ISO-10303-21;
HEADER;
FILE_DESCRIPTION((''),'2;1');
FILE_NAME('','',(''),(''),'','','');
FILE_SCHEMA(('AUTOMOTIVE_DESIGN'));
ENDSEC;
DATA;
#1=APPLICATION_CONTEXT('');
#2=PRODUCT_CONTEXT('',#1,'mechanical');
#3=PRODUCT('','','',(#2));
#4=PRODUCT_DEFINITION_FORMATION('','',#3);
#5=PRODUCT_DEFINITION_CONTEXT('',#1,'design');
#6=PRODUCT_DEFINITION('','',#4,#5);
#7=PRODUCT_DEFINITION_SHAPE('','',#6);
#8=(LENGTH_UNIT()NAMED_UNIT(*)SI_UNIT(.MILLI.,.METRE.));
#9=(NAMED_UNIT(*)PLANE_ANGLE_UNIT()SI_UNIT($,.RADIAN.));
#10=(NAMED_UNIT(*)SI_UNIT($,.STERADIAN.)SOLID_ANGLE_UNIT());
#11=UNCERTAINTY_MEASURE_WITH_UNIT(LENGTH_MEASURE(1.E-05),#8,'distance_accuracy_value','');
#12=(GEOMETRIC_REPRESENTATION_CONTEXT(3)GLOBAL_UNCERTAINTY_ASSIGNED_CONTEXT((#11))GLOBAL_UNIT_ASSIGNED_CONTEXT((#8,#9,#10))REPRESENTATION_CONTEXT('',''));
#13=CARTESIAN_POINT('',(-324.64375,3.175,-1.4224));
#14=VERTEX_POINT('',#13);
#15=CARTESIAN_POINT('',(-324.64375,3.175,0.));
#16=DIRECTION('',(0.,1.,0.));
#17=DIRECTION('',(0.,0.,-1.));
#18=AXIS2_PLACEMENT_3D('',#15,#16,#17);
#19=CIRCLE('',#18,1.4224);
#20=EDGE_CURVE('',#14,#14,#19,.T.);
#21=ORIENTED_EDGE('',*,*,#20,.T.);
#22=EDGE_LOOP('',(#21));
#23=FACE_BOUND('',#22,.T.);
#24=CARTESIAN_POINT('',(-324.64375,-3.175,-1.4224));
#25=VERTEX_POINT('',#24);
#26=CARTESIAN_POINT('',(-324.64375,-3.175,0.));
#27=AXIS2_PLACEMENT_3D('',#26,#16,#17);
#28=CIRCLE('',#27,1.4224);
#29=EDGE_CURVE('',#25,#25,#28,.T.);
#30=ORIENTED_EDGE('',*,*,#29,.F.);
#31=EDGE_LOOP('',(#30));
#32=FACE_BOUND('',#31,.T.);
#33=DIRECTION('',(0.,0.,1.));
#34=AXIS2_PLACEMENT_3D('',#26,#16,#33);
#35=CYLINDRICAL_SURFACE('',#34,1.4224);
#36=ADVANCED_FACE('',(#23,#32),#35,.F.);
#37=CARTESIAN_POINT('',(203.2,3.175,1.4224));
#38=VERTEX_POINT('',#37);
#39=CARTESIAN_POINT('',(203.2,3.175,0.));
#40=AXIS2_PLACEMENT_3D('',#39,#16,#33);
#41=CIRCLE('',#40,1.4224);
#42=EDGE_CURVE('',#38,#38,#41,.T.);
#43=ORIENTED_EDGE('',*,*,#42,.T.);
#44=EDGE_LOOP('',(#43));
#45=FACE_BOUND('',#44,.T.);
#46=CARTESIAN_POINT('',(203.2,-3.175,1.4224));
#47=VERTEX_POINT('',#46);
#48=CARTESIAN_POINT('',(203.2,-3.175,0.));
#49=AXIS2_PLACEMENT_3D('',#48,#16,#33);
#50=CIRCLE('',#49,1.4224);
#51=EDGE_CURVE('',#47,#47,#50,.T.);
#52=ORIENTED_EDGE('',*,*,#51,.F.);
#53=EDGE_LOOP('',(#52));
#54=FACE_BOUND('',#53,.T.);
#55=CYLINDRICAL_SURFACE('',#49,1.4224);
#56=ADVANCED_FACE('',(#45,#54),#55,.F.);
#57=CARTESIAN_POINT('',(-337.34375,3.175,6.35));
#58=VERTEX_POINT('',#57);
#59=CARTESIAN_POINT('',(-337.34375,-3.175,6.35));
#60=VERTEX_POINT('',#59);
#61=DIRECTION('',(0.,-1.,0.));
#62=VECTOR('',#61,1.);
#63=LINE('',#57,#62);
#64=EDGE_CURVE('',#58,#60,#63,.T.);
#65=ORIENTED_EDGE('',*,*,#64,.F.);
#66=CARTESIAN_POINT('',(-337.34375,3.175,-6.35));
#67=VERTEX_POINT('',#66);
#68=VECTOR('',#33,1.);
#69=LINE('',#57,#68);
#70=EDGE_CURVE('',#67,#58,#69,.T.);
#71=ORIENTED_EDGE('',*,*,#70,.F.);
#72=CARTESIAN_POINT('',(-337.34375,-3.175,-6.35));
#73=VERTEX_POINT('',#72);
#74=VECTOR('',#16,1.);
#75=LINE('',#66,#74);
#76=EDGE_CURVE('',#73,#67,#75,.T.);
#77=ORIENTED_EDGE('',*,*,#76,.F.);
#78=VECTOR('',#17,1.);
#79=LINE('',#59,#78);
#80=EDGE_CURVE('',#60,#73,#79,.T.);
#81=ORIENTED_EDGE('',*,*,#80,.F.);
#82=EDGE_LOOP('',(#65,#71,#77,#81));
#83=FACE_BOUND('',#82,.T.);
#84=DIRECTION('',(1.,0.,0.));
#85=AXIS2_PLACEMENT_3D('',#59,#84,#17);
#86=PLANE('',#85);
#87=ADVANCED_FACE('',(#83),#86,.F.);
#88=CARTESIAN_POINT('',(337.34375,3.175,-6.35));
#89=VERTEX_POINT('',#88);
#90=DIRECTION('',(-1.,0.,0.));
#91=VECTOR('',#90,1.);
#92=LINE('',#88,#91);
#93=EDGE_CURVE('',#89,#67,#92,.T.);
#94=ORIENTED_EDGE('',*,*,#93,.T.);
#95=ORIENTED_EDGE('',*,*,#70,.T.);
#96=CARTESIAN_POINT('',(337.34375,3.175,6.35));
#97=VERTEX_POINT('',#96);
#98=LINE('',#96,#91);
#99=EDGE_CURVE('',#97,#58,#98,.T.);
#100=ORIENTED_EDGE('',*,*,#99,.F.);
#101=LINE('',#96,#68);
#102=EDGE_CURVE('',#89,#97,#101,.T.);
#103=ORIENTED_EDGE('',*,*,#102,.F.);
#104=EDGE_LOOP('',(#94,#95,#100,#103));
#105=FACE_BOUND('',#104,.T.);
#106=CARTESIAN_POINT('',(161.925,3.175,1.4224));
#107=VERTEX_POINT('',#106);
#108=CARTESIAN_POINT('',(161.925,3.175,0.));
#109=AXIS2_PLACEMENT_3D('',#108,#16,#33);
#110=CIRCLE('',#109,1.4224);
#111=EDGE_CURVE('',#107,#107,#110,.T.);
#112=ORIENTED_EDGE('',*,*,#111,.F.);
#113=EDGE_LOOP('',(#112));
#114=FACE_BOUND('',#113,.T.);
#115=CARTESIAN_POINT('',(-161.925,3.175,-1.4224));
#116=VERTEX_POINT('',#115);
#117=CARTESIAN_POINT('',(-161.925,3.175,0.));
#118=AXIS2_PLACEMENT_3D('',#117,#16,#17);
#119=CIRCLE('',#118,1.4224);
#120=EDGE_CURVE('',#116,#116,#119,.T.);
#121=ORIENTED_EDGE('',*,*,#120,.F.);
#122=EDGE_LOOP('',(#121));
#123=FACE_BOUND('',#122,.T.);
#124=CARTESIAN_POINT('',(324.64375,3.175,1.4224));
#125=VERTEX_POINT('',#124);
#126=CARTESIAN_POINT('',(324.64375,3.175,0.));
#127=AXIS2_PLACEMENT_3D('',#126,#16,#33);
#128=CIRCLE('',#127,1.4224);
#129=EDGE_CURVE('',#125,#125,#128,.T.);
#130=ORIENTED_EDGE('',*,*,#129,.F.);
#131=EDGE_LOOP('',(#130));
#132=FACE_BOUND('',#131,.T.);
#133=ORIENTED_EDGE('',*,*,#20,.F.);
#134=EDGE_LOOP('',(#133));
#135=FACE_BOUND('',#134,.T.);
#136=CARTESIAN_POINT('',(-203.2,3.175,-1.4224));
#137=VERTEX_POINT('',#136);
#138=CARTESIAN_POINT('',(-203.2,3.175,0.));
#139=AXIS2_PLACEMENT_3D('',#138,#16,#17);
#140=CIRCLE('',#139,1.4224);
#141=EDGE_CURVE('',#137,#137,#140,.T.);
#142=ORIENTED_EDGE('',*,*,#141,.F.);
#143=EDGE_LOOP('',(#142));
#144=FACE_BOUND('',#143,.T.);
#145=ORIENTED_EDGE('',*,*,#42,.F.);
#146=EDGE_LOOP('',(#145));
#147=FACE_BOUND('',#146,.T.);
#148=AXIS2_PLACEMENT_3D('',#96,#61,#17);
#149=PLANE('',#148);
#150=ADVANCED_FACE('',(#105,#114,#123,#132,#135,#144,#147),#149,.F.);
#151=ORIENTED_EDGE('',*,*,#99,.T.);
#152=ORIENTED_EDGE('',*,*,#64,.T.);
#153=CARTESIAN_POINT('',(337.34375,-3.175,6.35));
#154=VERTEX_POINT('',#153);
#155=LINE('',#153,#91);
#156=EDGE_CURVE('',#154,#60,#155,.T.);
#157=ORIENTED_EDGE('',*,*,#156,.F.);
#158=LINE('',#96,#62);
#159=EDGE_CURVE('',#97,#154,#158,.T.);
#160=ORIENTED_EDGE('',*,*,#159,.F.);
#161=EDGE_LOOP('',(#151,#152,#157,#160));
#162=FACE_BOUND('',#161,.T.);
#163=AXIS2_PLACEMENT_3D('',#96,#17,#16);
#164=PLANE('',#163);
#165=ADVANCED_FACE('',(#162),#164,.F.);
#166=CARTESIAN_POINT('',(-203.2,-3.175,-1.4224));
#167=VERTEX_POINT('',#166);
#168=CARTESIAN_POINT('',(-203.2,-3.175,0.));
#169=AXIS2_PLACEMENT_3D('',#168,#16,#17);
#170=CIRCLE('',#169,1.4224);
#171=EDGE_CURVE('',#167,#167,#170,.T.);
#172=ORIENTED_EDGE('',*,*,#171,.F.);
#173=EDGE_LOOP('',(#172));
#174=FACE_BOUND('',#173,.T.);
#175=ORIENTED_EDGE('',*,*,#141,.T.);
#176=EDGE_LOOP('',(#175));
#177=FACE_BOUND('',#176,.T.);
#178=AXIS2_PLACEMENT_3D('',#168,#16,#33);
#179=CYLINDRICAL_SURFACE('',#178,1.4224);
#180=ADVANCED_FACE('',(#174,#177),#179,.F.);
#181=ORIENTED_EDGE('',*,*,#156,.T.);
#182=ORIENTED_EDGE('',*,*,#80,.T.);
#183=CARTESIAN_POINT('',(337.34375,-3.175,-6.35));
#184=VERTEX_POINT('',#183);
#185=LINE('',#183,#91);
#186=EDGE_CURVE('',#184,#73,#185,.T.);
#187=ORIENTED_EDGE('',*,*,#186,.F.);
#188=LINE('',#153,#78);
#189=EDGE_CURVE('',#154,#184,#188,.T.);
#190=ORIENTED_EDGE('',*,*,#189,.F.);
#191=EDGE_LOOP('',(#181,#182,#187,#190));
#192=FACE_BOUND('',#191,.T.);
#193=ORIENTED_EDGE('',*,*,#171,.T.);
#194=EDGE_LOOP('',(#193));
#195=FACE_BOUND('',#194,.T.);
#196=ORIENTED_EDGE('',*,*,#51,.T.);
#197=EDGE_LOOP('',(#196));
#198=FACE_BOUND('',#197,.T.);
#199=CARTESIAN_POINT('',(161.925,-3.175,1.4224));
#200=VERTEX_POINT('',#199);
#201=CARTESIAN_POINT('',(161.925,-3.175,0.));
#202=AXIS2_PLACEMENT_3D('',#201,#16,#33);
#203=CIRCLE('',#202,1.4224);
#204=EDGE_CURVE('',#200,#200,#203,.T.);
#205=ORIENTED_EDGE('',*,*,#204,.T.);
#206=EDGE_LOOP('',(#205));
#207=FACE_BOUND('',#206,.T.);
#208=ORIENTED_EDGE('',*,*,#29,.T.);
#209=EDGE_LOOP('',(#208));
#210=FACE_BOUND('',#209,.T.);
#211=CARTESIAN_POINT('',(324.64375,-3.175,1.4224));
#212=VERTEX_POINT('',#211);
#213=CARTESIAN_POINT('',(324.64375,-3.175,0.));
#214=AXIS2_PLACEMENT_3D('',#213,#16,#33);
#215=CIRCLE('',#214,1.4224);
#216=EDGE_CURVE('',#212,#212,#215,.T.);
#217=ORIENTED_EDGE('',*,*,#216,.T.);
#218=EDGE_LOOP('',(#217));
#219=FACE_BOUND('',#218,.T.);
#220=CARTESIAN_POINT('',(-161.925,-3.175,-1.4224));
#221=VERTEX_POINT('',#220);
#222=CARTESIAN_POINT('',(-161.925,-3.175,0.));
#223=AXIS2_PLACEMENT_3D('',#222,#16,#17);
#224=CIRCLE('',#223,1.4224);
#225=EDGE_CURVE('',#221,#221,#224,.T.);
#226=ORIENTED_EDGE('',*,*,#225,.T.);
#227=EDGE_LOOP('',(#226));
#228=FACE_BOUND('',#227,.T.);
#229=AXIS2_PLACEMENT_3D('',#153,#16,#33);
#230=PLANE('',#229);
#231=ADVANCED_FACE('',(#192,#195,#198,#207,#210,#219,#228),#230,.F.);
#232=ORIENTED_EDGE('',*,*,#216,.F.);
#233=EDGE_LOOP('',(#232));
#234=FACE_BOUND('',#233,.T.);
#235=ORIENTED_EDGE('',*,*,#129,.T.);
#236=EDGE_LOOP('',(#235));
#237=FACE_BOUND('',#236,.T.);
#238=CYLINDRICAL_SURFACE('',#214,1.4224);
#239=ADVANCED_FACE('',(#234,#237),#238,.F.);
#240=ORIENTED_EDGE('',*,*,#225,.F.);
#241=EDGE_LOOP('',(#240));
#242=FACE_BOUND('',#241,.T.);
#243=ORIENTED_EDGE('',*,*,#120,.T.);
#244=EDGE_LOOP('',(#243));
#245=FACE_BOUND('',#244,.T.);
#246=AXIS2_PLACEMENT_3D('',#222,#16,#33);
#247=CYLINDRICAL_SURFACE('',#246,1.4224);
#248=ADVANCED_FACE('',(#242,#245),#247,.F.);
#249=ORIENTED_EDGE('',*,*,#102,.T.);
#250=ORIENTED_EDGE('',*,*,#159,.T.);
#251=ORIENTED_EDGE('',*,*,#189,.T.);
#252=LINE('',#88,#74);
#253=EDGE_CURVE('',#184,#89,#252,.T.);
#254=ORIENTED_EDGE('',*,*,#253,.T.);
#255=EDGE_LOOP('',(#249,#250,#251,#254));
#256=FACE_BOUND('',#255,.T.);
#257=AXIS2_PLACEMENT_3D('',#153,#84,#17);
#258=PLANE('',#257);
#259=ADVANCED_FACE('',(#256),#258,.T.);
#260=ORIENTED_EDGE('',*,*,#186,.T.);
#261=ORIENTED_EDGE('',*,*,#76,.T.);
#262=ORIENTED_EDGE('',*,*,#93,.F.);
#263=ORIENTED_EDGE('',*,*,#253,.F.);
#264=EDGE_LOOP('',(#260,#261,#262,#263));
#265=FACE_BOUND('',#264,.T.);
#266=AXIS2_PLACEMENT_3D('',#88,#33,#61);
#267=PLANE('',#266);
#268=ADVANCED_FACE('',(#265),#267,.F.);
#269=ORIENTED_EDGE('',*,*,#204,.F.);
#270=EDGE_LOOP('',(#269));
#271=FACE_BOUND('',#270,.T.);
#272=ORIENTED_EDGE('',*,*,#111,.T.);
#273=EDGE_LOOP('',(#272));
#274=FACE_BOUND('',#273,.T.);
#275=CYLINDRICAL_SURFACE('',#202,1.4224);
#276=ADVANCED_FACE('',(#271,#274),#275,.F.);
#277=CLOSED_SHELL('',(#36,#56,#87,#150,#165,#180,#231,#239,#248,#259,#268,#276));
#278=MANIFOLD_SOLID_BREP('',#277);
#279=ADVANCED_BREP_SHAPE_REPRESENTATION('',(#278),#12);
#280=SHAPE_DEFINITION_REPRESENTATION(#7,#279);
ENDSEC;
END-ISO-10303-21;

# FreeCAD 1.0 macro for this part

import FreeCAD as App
import Part
import Sketcher
from FreeCAD import Vector
Q = App.Units.Quantity

doc = App.newDocument("Part")
body = doc.addObject("PartDesign::Body", "Body")

sketch1 = body.newObject("Sketcher::SketchObject", "Sketch")
sketch1.AttachmentSupport = (doc.getObject("YZ_Plane"), [""])
sketch1.MapMode = "FlatFace"
sketch1.addGeometry(Part.LineSegment(Vector(3.175, 6.35, 0), Vector(-3.175, 6.35, 0)), False)
sketch1.addGeometry(Part.LineSegment(Vector(-3.175, 6.35, 0), Vector(-3.175, -6.35, 0)), False)
sketch1.addGeometry(Part.LineSegment(Vector(-3.175, -6.35, 0), Vector(3.175, -6.35, 0)), False)
sketch1.addGeometry(Part.LineSegment(Vector(3.175, -6.35, 0), Vector(3.175, 6.35, 0)), False)
sketch1.addConstraint(Sketcher.Constraint("Coincident", 0, 2, 1, 1))
sketch1.addConstraint(Sketcher.Constraint("Coincident", 1, 2, 2, 1))
sketch1.addConstraint(Sketcher.Constraint("Coincident", 2, 2, 3, 1))
sketch1.addConstraint(Sketcher.Constraint("Coincident", 3, 2, 0, 1))
sketch1.addConstraint(Sketcher.Constraint("Horizontal", 0))
sketch1.addConstraint(Sketcher.Constraint("Vertical", 1))
sketch1.addConstraint(Sketcher.Constraint("Horizontal", 2))
sketch1.addConstraint(Sketcher.Constraint("Vertical", 3))
sketch1.addConstraint(Sketcher.Constraint("Symmetric", 0, 2, 2, 2, -1, 1))
sketch1.addConstraint(Sketcher.Constraint("DistanceY", 1, 2, 1, 1, Q("0.5 in")))
sketch1.addConstraint(Sketcher.Constraint("DistanceX", 0, 2, 0, 1, Q("0.25 in")))
pad1 = body.newObject("PartDesign::Pad", "Pad")
pad1.Profile = sketch1
pad1.Length = Q("26.5625 in")
pad1.Midplane = True

sketch2 = body.newObject("Sketcher::SketchObject", "Sketch001")
sketch2.AttachmentSupport = (doc.getObject("XZ_Plane"), [""])
sketch2.MapMode = "FlatFace"
sketch2.AttachmentOffset = App.Placement(Vector(0, 0, -0.125 * 25.4), App.Rotation())
sketch2.addGeometry(Part.Circle(Vector(161.925, 0, 0), Vector(0, 0, 1), 1.4224), False)
sketch2.addGeometry(Part.Circle(Vector(203.2, 0, 0), Vector(0, 0, 1), 1.4224), False)
sketch2.addGeometry(Part.Circle(Vector(-203.2, 0, 0), Vector(0, 0, 1), 1.4224), False)
sketch2.addGeometry(Part.Circle(Vector(-161.925, 0, 0), Vector(0, 0, 1), 1.4224), False)
sketch2.addGeometry(Part.Circle(Vector(324.64375, 0, 0), Vector(0, 0, 1), 1.4224), False)
sketch2.addGeometry(Part.Circle(Vector(-324.64375, 0, 0), Vector(0, 0, 1), 1.4224), False)
sketch2.addConstraint(Sketcher.Constraint("Equal", 0, 1))
sketch2.addConstraint(Sketcher.Constraint("Equal", 1, 2))
sketch2.addConstraint(Sketcher.Constraint("Equal", 2, 3))
sketch2.addConstraint(Sketcher.Constraint("Equal", 3, 4))
sketch2.addConstraint(Sketcher.Constraint("Equal", 4, 5))
sketch2.addConstraint(Sketcher.Constraint("Symmetric", 1, 3, 2, 3, -1, 1))
sketch2.addConstraint(Sketcher.Constraint("Symmetric", 0, 3, 3, 3, -1, 1))
sketch2.addConstraint(Sketcher.Constraint("Symmetric", 4, 3, 5, 3, -1, 1))
sketch2.addConstraint(Sketcher.Constraint("PointOnObject", 0, 3, -1))
sketch2.addConstraint(Sketcher.Constraint("PointOnObject", 1, 3, -1))
sketch2.addConstraint(Sketcher.Constraint("PointOnObject", 4, 3, -1))
sketch2.addConstraint(Sketcher.Constraint("Diameter", 0, Q("0.112 in")))
sketch2.addConstraint(Sketcher.Constraint("DistanceX", -1, 1, 1, 3, Q("8 in")))
sketch2.addConstraint(Sketcher.Constraint("DistanceX", 3, 3, 0, 3, Q("12.75 in")))
sketch2.addConstraint(Sketcher.Constraint("DistanceX", -1, 1, 4, 3, Q("12.78125 in")))
pocket1 = body.newObject("PartDesign::Pocket", "Pocket")
pocket1.Profile = sketch2
pocket1.Type = "ThroughAll"
pocket1.Reversed = True

doc.recompute()
